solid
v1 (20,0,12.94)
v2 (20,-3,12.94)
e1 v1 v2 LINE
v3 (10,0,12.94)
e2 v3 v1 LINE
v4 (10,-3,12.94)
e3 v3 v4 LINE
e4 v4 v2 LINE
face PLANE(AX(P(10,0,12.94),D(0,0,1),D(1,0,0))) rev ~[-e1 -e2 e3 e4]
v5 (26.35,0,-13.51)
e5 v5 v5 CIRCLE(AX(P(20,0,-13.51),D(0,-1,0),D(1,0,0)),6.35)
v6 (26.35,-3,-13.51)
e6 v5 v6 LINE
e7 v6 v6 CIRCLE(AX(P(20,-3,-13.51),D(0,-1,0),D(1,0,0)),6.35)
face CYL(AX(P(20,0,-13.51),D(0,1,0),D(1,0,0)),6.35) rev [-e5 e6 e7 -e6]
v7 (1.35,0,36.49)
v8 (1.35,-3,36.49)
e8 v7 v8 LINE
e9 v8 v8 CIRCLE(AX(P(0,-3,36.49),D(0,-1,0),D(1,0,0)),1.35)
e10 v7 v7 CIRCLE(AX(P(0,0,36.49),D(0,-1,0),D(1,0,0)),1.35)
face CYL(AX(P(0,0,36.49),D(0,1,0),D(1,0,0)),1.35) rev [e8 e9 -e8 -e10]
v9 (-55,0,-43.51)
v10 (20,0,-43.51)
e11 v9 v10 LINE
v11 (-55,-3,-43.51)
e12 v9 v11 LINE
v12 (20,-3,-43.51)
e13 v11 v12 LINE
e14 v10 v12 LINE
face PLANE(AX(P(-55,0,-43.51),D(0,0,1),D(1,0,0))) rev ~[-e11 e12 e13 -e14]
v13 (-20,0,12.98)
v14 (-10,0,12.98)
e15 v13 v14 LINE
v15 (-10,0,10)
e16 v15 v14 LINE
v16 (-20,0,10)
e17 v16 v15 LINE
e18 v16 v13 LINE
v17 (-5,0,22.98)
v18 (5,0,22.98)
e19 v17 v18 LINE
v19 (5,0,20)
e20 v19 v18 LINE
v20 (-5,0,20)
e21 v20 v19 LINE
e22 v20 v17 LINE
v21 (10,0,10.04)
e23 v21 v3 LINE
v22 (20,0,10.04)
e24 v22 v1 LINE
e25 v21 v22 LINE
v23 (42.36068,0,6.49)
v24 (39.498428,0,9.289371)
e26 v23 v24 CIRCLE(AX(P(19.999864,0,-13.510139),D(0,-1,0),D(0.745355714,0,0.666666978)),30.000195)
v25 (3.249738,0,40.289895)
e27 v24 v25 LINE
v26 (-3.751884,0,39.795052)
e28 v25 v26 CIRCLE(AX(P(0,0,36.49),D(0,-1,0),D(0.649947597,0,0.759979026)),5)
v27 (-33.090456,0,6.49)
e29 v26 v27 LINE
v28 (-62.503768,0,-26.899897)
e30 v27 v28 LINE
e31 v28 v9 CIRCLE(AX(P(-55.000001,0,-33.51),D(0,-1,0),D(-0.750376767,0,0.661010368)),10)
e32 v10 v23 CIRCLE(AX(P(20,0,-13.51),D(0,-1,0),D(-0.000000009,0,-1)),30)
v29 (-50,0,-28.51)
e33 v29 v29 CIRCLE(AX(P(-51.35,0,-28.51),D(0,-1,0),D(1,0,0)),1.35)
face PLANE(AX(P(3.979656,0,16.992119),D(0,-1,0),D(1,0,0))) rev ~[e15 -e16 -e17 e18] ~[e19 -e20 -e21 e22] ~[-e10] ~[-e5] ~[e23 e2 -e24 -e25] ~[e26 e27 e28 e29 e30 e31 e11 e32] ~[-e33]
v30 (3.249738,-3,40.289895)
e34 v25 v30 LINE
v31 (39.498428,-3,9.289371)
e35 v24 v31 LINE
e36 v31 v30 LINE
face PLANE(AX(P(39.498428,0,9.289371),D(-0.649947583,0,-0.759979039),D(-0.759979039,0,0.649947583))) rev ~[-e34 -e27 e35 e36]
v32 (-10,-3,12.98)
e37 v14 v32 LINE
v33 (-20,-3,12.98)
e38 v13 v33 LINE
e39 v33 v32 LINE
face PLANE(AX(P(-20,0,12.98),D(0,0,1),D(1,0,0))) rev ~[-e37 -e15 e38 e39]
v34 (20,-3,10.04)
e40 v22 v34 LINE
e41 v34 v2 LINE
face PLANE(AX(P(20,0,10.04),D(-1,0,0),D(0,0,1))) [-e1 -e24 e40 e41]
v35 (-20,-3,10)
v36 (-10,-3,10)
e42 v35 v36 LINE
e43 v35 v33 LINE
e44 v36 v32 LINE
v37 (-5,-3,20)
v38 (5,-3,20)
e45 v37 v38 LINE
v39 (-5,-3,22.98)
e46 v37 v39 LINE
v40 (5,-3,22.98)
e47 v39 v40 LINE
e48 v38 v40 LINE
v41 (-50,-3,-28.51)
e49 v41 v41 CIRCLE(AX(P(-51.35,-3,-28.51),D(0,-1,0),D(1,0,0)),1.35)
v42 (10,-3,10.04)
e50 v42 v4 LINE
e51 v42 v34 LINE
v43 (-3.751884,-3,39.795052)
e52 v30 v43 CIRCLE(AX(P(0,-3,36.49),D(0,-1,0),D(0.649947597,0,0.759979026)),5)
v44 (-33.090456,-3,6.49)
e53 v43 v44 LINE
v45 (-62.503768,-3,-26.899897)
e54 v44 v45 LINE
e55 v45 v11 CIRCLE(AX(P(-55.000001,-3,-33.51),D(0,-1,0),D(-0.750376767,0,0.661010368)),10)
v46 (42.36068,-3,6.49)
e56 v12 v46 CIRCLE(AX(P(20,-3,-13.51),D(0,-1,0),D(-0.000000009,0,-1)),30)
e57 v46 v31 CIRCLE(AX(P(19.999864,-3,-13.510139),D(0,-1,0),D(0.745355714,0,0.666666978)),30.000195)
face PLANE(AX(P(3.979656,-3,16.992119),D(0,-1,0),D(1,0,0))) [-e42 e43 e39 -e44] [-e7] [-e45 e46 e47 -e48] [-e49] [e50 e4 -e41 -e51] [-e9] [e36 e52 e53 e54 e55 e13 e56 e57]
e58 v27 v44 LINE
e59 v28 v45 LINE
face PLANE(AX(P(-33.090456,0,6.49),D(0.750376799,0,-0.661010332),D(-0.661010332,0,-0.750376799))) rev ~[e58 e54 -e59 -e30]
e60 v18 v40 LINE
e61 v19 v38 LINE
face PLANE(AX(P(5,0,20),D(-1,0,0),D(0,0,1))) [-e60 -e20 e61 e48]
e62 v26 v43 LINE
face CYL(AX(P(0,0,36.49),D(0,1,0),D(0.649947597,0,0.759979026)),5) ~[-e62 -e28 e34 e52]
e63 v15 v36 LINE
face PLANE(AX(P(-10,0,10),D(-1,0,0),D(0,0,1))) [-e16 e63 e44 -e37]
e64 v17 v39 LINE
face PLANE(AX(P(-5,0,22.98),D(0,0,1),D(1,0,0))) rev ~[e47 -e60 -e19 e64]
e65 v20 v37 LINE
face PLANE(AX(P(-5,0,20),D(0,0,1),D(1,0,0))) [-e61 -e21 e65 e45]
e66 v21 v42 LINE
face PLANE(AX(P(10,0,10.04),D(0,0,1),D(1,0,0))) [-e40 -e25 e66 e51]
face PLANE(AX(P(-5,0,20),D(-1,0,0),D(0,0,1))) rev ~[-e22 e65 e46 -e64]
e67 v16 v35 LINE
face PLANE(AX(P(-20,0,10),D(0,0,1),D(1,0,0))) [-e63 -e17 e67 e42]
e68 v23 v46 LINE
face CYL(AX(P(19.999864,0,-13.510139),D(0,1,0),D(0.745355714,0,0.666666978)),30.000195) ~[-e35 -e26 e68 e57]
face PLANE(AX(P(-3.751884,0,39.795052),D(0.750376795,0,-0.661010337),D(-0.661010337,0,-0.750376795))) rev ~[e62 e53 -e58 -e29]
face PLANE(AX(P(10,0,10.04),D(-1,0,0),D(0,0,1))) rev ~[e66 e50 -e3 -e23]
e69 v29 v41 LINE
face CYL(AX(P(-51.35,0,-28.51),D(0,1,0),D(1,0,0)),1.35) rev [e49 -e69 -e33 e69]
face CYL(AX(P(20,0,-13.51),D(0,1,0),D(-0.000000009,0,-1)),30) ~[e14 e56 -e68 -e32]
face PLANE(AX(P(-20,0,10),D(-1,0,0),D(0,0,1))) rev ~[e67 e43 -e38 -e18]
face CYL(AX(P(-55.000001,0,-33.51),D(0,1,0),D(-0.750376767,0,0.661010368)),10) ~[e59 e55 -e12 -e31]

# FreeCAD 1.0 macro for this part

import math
import FreeCAD as App
import Part
import Sketcher
from FreeCAD import Vector
Q = App.Units.Quantity

doc = App.newDocument("Part")
body = doc.addObject("PartDesign::Body", "Body")

sketch1 = body.newObject("Sketcher::SketchObject", "Sketch")
sketch1.AttachmentSupport = (doc.getObject("XZ_Plane"), [""])
sketch1.MapMode = "FlatFace"
sketch1.addGeometry([
    Part.LineSegment(Vector(-3.751884, 39.795052, 0), Vector(-33.090456, 6.49, 0)),
    Part.LineSegment(Vector(-33.090456, 6.49, 0), Vector(-62.503768, -26.899897, 0)),
    Part.ArcOfCircle(Part.Circle(Vector(-55.000001, -33.51, 0), Vector(0, 0, 1), 10), math.radians(138.623025), math.radians(270.000004)),
    Part.LineSegment(Vector(-55, -43.51, 0), Vector(20, -43.51, 0)),
    Part.ArcOfCircle(Part.Circle(Vector(20, -13.51, 0), Vector(0, 0, 1), 30), math.radians(-90.000001), math.radians(41.810315)),
    Part.ArcOfCircle(Part.Circle(Vector(19.999864, -13.510139, 0), Vector(0, 0, 1), 30.000195), math.radians(41.810339), math.radians(49.462324)),
    Part.LineSegment(Vector(39.498428, 9.289371, 0), Vector(3.249738, 40.289895, 0)),
    Part.ArcOfCircle(Part.Circle(Vector(0, 36.49, 0), Vector(0, 0, 1), 5), math.radians(49.462349), math.radians(138.62302)),
    Part.Circle(Vector(-51.35, -28.51, 0), Vector(0, 0, 1), 1.35),
    Part.Circle(Vector(20, -13.51, 0), Vector(0, 0, 1), 6.35),
    Part.LineSegment(Vector(-10, 10, 0), Vector(-20, 10, 0)),
    Part.LineSegment(Vector(-20, 10, 0), Vector(-20, 12.98, 0)),
    Part.LineSegment(Vector(-20, 12.98, 0), Vector(-10, 12.98, 0)),
    Part.LineSegment(Vector(-10, 12.98, 0), Vector(-10, 10, 0)),
    Part.LineSegment(Vector(20, 10.04, 0), Vector(10, 10.04, 0)),
    Part.LineSegment(Vector(10, 10.04, 0), Vector(10, 12.94, 0)),
    Part.LineSegment(Vector(10, 12.94, 0), Vector(20, 12.94, 0)),
    Part.LineSegment(Vector(20, 12.94, 0), Vector(20, 10.04, 0)),
    Part.LineSegment(Vector(5, 20, 0), Vector(-5, 20, 0)),
    Part.LineSegment(Vector(-5, 20, 0), Vector(-5, 22.98, 0)),
    Part.LineSegment(Vector(-5, 22.98, 0), Vector(5, 22.98, 0)),
    Part.LineSegment(Vector(5, 22.98, 0), Vector(5, 20, 0)),
    Part.Circle(Vector(0, 36.49, 0), Vector(0, 0, 1), 1.35),
], False)
sketch1.addConstraint([
    Sketcher.Constraint("Coincident", 0, 2, 1, 1),
    Sketcher.Constraint("Coincident", 1, 2, 2, 1),
    Sketcher.Constraint("Coincident", 2, 2, 3, 1),
    Sketcher.Constraint("Coincident", 3, 2, 4, 1),
    Sketcher.Constraint("Coincident", 4, 2, 5, 1),
    Sketcher.Constraint("Coincident", 5, 2, 6, 1),
    Sketcher.Constraint("Coincident", 6, 2, 7, 1),
    Sketcher.Constraint("Coincident", 7, 2, 0, 1),
    Sketcher.Constraint("Coincident", 10, 2, 11, 1),
    Sketcher.Constraint("Coincident", 11, 2, 12, 1),
    Sketcher.Constraint("Coincident", 12, 2, 13, 1),
    Sketcher.Constraint("Coincident", 13, 2, 10, 1),
    Sketcher.Constraint("Coincident", 14, 2, 15, 1),
    Sketcher.Constraint("Coincident", 15, 2, 16, 1),
    Sketcher.Constraint("Coincident", 16, 2, 17, 1),
    Sketcher.Constraint("Coincident", 17, 2, 14, 1),
    Sketcher.Constraint("Coincident", 18, 2, 19, 1),
    Sketcher.Constraint("Coincident", 19, 2, 20, 1),
    Sketcher.Constraint("Coincident", 20, 2, 21, 1),
    Sketcher.Constraint("Coincident", 21, 2, 18, 1),
    Sketcher.Constraint("Horizontal", 3),
    Sketcher.Constraint("Horizontal", 10),
    Sketcher.Constraint("Vertical", 11),
    Sketcher.Constraint("Horizontal", 12),
    Sketcher.Constraint("Vertical", 13),
    Sketcher.Constraint("Horizontal", 14),
    Sketcher.Constraint("Vertical", 15),
    Sketcher.Constraint("Horizontal", 16),
    Sketcher.Constraint("Vertical", 17),
    Sketcher.Constraint("Horizontal", 18),
    Sketcher.Constraint("Vertical", 19),
    Sketcher.Constraint("Horizontal", 20),
    Sketcher.Constraint("Vertical", 21),
    Sketcher.Constraint("Coincident", 9, 3, 4, 3),
    Sketcher.Constraint("Coincident", 22, 3, 7, 3),
    Sketcher.Constraint("PointOnObject", 7, 3, -2),
    Sketcher.Constraint("Radius", 2, Q("10 mm")),
    Sketcher.Constraint("Radius", 4, Q("30 mm")),
    Sketcher.Constraint("Radius", 7, Q("5 mm")),
    Sketcher.Constraint("Diameter", 8, Q("2.7 mm")),
    Sketcher.Constraint("Diameter", 9, Q("12.7 mm")),
    Sketcher.Constraint("Diameter", 22, Q("2.7 mm")),
    Sketcher.Constraint("DistanceX", 3, 1, 3, 2, Q("75 mm")),
    Sketcher.Constraint("DistanceX", 10, 2, 10, 1, Q("10 mm")),
    Sketcher.Constraint("DistanceX", 14, 2, 14, 1, Q("10 mm")),
    Sketcher.Constraint("DistanceX", 18, 2, 18, 1, Q("10 mm")),
    Sketcher.Constraint("DistanceY", 15, 1, 15, 2, Q("2.9 mm")),
    Sketcher.Constraint("DistanceX", 2, 3, -1, 1, Q("55.000001 mm")),
    Sketcher.Constraint("DistanceX", -1, 1, 4, 3, Q("20 mm")),
    Sketcher.Constraint("DistanceX", 2, 2, -1, 1, Q("55 mm")),
    Sketcher.Constraint("DistanceX", 10, 2, -1, 1, Q("20 mm")),
    Sketcher.Constraint("DistanceY", -1, 1, 10, 2, Q("10 mm")),
    Sketcher.Constraint("DistanceX", -1, 1, 14, 2, Q("10 mm")),
    Sketcher.Constraint("DistanceX", 18, 2, -1, 1, Q("5 mm")),
    Sketcher.Constraint("DistanceY", -1, 1, 18, 2, Q("20 mm")),
    Sketcher.Constraint("DistanceY", 4, 3, 7, 3, Q("50 mm")),
    Sketcher.Constraint("DistanceY", 2, 3, 8, 3, Q("5 mm")),
    Sketcher.Constraint("DistanceY", 8, 3, 0, 2, Q("35 mm")),
    Sketcher.Constraint("DistanceY", 4, 3, 4, 2, Q("20 mm")),
    Sketcher.Constraint("DistanceY", 12, 2, 19, 2, Q("10 mm")),
    Sketcher.Constraint("DistanceY", 11, 1, 11, 2, Q("2.98 mm")),
    Sketcher.Constraint("DistanceY", 2, 3, -1, 1, Q("33.51 mm")),
    Sketcher.Constraint("DistanceX", 8, 3, -1, 1, Q("51.35 mm")),
    Sketcher.Constraint("DistanceY", -1, 1, 14, 2, Q("10.04 mm")),
    Sketcher.Constraint("Radius", 5, Q("30.000195 mm")),
    Sketcher.Constraint("Distance", 6, Q("47.69696 mm")),
    Sketcher.Constraint("DistanceY", 5, 3, -1, 1, Q("13.510139 mm")),
    Sketcher.Constraint("DistanceY", -1, 1, 5, 2, Q("9.289371 mm")),
    Sketcher.Constraint("DistanceY", -1, 1, 7, 2, Q("39.795052 mm")),
    Sketcher.Constraint("DistanceX", 0, 2, 5, 3, Q("53.09032 mm")),
    Sketcher.Constraint("DistanceX", 1, 2, 0, 2, Q("29.413312 mm")),
])
pad1 = body.newObject("PartDesign::Pad", "Pad")
pad1.Profile = sketch1
pad1.Length = 3

doc.recompute()
